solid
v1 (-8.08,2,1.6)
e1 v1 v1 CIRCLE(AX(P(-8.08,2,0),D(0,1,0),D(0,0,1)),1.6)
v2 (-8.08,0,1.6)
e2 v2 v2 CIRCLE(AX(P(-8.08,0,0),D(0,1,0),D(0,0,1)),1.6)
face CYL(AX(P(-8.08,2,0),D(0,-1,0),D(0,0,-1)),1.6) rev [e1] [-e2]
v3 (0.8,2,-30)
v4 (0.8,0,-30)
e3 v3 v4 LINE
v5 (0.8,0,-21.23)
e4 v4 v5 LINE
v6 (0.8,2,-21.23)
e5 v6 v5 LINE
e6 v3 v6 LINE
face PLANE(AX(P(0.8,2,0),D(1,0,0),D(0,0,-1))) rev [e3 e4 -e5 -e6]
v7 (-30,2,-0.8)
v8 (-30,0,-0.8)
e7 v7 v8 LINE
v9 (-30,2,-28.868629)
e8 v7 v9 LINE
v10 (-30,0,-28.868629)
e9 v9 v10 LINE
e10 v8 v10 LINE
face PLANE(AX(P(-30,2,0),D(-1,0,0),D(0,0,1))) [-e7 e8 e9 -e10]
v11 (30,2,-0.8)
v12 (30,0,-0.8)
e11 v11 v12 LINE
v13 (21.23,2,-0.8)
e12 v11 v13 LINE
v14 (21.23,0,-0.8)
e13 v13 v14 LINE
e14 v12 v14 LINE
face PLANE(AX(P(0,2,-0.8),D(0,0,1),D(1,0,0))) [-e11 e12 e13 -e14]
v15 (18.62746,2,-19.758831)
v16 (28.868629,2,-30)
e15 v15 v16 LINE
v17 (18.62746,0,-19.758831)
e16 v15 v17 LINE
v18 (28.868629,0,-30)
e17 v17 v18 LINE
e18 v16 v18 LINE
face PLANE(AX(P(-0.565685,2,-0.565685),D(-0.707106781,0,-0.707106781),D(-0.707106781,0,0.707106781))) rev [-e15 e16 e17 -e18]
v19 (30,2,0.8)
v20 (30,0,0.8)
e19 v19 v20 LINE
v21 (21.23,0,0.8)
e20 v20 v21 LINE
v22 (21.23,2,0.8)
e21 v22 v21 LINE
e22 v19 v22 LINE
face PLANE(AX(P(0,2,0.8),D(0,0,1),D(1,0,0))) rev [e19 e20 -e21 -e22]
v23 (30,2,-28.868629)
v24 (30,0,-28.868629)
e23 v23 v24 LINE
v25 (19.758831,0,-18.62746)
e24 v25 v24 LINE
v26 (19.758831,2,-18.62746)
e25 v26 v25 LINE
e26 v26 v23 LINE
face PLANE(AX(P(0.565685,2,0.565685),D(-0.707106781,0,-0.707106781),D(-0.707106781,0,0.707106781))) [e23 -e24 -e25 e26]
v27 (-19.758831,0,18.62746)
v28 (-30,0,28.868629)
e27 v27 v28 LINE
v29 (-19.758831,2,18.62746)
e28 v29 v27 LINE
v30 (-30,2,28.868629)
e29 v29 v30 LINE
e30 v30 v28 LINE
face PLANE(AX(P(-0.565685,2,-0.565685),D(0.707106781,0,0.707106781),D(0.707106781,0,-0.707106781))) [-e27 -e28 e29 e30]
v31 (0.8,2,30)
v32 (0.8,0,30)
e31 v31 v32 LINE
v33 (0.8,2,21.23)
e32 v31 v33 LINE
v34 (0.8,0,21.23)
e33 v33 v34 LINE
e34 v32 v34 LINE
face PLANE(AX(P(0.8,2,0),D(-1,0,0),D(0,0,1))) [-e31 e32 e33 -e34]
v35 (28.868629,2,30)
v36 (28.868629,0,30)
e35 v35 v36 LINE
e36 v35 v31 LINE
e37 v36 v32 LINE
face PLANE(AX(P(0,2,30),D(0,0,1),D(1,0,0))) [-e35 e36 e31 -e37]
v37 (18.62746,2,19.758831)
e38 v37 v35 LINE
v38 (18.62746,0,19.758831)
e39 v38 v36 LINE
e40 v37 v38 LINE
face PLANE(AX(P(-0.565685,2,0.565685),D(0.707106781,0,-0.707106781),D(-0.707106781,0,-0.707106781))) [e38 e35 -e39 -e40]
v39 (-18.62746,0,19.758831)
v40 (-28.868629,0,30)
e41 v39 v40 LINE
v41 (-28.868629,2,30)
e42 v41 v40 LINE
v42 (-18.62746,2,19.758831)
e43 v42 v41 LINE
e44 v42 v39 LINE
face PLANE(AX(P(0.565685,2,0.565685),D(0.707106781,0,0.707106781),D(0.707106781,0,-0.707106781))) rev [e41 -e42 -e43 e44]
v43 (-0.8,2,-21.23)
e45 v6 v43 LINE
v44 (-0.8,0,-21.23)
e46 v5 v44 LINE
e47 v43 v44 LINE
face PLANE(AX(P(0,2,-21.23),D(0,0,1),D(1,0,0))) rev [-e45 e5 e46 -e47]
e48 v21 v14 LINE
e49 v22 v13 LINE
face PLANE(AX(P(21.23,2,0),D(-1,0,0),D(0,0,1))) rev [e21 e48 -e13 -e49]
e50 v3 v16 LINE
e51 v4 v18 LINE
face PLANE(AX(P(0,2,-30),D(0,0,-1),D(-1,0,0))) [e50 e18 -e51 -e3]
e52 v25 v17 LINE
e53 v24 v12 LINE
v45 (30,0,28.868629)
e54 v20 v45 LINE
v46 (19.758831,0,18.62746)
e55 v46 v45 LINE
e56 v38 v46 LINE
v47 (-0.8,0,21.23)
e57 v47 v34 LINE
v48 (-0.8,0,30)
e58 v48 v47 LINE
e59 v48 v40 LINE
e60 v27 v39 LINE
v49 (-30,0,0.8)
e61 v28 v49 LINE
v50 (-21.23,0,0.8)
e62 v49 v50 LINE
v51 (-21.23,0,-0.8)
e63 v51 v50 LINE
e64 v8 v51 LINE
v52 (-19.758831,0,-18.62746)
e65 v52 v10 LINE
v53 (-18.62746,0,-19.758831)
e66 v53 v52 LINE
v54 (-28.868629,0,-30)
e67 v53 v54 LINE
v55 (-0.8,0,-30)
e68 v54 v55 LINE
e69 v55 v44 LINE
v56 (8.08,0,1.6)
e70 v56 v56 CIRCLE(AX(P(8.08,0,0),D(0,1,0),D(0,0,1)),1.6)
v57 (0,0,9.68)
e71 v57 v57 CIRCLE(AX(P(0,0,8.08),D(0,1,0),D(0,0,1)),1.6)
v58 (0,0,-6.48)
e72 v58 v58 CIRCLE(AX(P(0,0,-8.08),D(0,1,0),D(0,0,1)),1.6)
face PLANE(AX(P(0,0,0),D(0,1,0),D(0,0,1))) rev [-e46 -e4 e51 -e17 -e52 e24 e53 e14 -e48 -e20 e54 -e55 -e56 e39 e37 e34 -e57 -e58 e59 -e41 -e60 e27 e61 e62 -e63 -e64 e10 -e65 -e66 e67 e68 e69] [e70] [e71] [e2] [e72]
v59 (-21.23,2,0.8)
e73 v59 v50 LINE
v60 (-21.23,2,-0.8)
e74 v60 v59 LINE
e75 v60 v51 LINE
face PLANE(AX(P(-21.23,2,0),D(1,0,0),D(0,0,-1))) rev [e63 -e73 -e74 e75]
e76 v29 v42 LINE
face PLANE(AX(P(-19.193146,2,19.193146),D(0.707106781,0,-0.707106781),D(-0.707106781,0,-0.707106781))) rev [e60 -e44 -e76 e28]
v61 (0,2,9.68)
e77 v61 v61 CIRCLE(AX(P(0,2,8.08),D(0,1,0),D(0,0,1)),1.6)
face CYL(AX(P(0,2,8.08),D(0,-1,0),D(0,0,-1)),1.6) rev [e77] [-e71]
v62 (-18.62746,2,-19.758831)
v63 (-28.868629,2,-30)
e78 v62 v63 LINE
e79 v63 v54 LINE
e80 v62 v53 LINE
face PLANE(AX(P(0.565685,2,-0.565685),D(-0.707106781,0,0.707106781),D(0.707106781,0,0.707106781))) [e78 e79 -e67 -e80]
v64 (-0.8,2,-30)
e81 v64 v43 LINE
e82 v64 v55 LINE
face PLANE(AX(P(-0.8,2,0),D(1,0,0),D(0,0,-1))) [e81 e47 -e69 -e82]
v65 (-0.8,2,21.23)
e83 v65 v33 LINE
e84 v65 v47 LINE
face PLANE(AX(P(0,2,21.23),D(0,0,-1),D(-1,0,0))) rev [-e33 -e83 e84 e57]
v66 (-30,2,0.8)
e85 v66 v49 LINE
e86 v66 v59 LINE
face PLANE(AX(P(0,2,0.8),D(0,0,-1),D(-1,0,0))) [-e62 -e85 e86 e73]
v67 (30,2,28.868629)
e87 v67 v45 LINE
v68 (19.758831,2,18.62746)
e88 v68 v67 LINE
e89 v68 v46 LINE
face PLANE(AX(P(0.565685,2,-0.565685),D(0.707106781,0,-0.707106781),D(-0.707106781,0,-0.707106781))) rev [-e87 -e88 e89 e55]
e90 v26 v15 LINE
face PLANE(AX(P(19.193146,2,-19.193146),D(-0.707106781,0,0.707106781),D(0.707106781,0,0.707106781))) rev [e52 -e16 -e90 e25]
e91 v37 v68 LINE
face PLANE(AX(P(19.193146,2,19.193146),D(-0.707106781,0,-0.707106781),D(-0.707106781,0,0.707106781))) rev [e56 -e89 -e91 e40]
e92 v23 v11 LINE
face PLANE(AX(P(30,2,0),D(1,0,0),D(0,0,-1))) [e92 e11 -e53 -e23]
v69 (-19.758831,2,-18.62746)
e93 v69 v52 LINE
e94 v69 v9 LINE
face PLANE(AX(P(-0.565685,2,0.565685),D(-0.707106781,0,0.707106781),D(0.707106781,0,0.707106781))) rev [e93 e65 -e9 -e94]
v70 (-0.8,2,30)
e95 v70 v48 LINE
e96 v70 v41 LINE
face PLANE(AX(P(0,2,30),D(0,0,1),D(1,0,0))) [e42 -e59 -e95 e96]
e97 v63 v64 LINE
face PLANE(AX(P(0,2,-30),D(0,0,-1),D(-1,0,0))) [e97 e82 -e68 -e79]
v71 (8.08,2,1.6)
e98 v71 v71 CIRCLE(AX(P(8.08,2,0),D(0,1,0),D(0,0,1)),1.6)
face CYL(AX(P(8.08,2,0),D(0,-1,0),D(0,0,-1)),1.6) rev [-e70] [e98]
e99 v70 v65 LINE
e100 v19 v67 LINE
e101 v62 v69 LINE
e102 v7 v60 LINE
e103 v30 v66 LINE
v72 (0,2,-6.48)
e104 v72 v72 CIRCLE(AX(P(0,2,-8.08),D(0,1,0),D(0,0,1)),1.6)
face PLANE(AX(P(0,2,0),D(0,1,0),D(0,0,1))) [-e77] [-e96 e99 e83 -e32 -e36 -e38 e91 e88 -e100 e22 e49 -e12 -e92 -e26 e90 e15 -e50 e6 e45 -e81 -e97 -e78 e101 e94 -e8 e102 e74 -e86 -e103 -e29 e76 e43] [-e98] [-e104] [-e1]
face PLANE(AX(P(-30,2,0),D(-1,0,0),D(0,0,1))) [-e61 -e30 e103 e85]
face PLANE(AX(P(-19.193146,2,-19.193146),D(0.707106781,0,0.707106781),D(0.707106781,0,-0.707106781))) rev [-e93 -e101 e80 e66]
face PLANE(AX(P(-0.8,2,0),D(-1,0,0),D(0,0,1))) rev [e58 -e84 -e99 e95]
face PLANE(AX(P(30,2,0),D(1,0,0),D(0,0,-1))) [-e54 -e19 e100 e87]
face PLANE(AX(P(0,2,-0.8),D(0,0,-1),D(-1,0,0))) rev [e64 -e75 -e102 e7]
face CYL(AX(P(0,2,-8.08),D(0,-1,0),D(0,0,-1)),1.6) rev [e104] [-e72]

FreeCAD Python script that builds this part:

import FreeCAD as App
import Part
import Sketcher

V = App.Vector
Q = App.Units.Quantity

doc = App.newDocument("Part")
body = doc.addObject("PartDesign::Body", "Body")

sketch1 = body.newObject("Sketcher::SketchObject", "Sketch")
sketch1.AttachmentSupport = (doc.getObject("XZ_Plane"), [""])
sketch1.MapMode = "FlatFace"
sketch1.addGeometry([
    Part.LineSegment(V(-30, -28.9, 0), V(-30, -0.8, 0)),
    Part.LineSegment(V(-30, -0.8, 0), V(-21.2, -0.8, 0)),
    Part.LineSegment(V(-21.2, -0.8, 0), V(-21.2, 0.8, 0)),
    Part.LineSegment(V(-21.2, 0.8, 0), V(-30, 0.8, 0)),
    Part.LineSegment(V(-30, 0.8, 0), V(-30, 28.9, 0)),
    Part.LineSegment(V(-30, 28.9, 0), V(-19.8, 18.6, 0)),
    Part.LineSegment(V(-19.8, 18.6, 0), V(-18.6, 19.8, 0)),
    Part.LineSegment(V(-18.6, 19.8, 0), V(-28.9, 30, 0)),
    Part.LineSegment(V(-28.9, 30, 0), V(-0.8, 30, 0)),
    Part.LineSegment(V(-0.8, 30, 0), V(-0.8, 21.2, 0)),
    Part.LineSegment(V(-0.8, 21.2, 0), V(0.8, 21.2, 0)),
    Part.LineSegment(V(0.8, 21.2, 0), V(0.8, 30, 0)),
    Part.LineSegment(V(0.8, 30, 0), V(28.9, 30, 0)),
    Part.LineSegment(V(28.9, 30, 0), V(18.6, 19.8, 0)),
    Part.LineSegment(V(18.6, 19.8, 0), V(19.8, 18.6, 0)),
    Part.LineSegment(V(19.8, 18.6, 0), V(30, 28.9, 0)),
    Part.LineSegment(V(30, 28.9, 0), V(30, 0.8, 0)),
    Part.LineSegment(V(30, 0.8, 0), V(21.2, 0.8, 0)),
    Part.LineSegment(V(21.2, 0.8, 0), V(21.2, -0.8, 0)),
    Part.LineSegment(V(21.2, -0.8, 0), V(30, -0.8, 0)),
    Part.LineSegment(V(30, -0.8, 0), V(30, -28.9, 0)),
    Part.LineSegment(V(30, -28.9, 0), V(19.8, -18.6, 0)),
    Part.LineSegment(V(19.8, -18.6, 0), V(18.6, -19.8, 0)),
    Part.LineSegment(V(18.6, -19.8, 0), V(28.9, -30, 0)),
    Part.LineSegment(V(28.9, -30, 0), V(0.8, -30, 0)),
    Part.LineSegment(V(0.8, -30, 0), V(0.8, -21.2, 0)),
    Part.LineSegment(V(0.8, -21.2, 0), V(-0.8, -21.2, 0)),
    Part.LineSegment(V(-0.8, -21.2, 0), V(-0.8, -30, 0)),
    Part.LineSegment(V(-0.8, -30, 0), V(-28.9, -30, 0)),
    Part.LineSegment(V(-28.9, -30, 0), V(-18.6, -19.8, 0)),
    Part.LineSegment(V(-18.6, -19.8, 0), V(-19.8, -18.6, 0)),
    Part.LineSegment(V(-19.8, -18.6, 0), V(-30, -28.9, 0)),
    Part.Circle(V(0, 8.1, 0), V(0, 0, 1), 1.6),
    Part.Circle(V(-8.1, 0, 0), V(0, 0, 1), 1.6),
    Part.Circle(V(8.1, 0, 0), V(0, 0, 1), 1.6),
    Part.Circle(V(0, -8.1, 0), V(0, 0, 1), 1.6),
], False)
sketch1.addConstraint([
    Sketcher.Constraint("Coincident", 0, 2, 1, 1),
    Sketcher.Constraint("Coincident", 1, 2, 2, 1),
    Sketcher.Constraint("Coincident", 2, 2, 3, 1),
    Sketcher.Constraint("Coincident", 3, 2, 4, 1),
    Sketcher.Constraint("Coincident", 4, 2, 5, 1),
    Sketcher.Constraint("Coincident", 5, 2, 6, 1),
    Sketcher.Constraint("Coincident", 6, 2, 7, 1),
    Sketcher.Constraint("Coincident", 7, 2, 8, 1),
    Sketcher.Constraint("Coincident", 8, 2, 9, 1),
    Sketcher.Constraint("Coincident", 9, 2, 10, 1),
    Sketcher.Constraint("Coincident", 10, 2, 11, 1),
    Sketcher.Constraint("Coincident", 11, 2, 12, 1),
    Sketcher.Constraint("Coincident", 12, 2, 13, 1),
    Sketcher.Constraint("Coincident", 13, 2, 14, 1),
    Sketcher.Constraint("Coincident", 14, 2, 15, 1),
    Sketcher.Constraint("Coincident", 15, 2, 16, 1),
    Sketcher.Constraint("Coincident", 16, 2, 17, 1),
    Sketcher.Constraint("Coincident", 17, 2, 18, 1),
    Sketcher.Constraint("Coincident", 18, 2, 19, 1),
    Sketcher.Constraint("Coincident", 19, 2, 20, 1),
    Sketcher.Constraint("Coincident", 20, 2, 21, 1),
    Sketcher.Constraint("Coincident", 21, 2, 22, 1),
    Sketcher.Constraint("Coincident", 22, 2, 23, 1),
    Sketcher.Constraint("Coincident", 23, 2, 24, 1),
    Sketcher.Constraint("Coincident", 24, 2, 25, 1),
    Sketcher.Constraint("Coincident", 25, 2, 26, 1),
    Sketcher.Constraint("Coincident", 26, 2, 27, 1),
    Sketcher.Constraint("Coincident", 27, 2, 28, 1),
    Sketcher.Constraint("Coincident", 28, 2, 29, 1),
    Sketcher.Constraint("Coincident", 29, 2, 30, 1),
    Sketcher.Constraint("Coincident", 30, 2, 31, 1),
    Sketcher.Constraint("Coincident", 31, 2, 0, 1),
    Sketcher.Constraint("Vertical", 0),
    Sketcher.Constraint("Horizontal", 1),
    Sketcher.Constraint("Vertical", 2),
    Sketcher.Constraint("Horizontal", 3),
    Sketcher.Constraint("Vertical", 4),
    Sketcher.Constraint("Horizontal", 8),
    Sketcher.Constraint("Vertical", 9),
    Sketcher.Constraint("Horizontal", 10),
    Sketcher.Constraint("Vertical", 11),
    Sketcher.Constraint("Horizontal", 12),
    Sketcher.Constraint("Vertical", 16),
    Sketcher.Constraint("Horizontal", 17),
    Sketcher.Constraint("Vertical", 18),
    Sketcher.Constraint("Horizontal", 19),
    Sketcher.Constraint("Vertical", 20),
    Sketcher.Constraint("Horizontal", 24),
    Sketcher.Constraint("Vertical", 25),
    Sketcher.Constraint("Horizontal", 26),
    Sketcher.Constraint("Vertical", 27),
    Sketcher.Constraint("Horizontal", 28),
    Sketcher.Constraint("Equal", 32, 33),
    Sketcher.Constraint("Equal", 33, 34),
    Sketcher.Constraint("Equal", 34, 35),
    Sketcher.Constraint("Symmetric", 33, 3, 34, 3, -1, 1),
    Sketcher.Constraint("Symmetric", 32, 3, 35, 3, -1, 1),
    Sketcher.Constraint("Symmetric", 0, 2, 16, 2, -1, 1),
    Sketcher.Constraint("Symmetric", 2, 2, 18, 2, -1, 1),
    Sketcher.Constraint("Symmetric", 4, 2, 20, 2, -1, 1),
    Sketcher.Constraint("Symmetric", 5, 2, 21, 2, -1, 1),
    Sketcher.Constraint("Symmetric", 6, 2, 22, 2, -1, 1),
    Sketcher.Constraint("Symmetric", 7, 2, 23, 2, -1, 1),
    Sketcher.Constraint("Symmetric", 9, 2, 25, 2, -1, 1),
    Sketcher.Constraint("Symmetric", 11, 2, 27, 2, -1, 1),
    Sketcher.Constraint("Symmetric", 13, 2, 29, 2, -1, 1),
    Sketcher.Constraint("Symmetric", 14, 2, 30, 2, -1, 1),
    Sketcher.Constraint("Symmetric", 8, 2, 11, 2, -2),
    Sketcher.Constraint("Symmetric", 6, 2, 13, 2, -2),
    Sketcher.Constraint("Symmetric", 5, 2, 14, 2, -2),
    Sketcher.Constraint("Symmetric", 4, 2, 15, 2, -2),
    Sketcher.Constraint("PointOnObject", 32, 3, -2),
    Sketcher.Constraint("PointOnObject", 33, 3, -1),
    Sketcher.Constraint("Perpendicular", 5, 6),
    Sketcher.Constraint("Perpendicular", 6, 7),
    Sketcher.Constraint("Perpendicular", 7, 13),
    Sketcher.Constraint("Perpendicular", 13, 14),
    Sketcher.Constraint("Perpendicular", 23, 29),
    Sketcher.Constraint("Perpendicular", 30, 31),
    Sketcher.Constraint("Horizontal", 3, 2, 16, 2),
    Sketcher.Constraint("Equal", 28, 0),
    Sketcher.Constraint("Equal", 26, 2),
    Sketcher.Constraint("Equal", 19, 9),
    Sketcher.Constraint("Equal", 5, 7),
    Sketcher.Constraint("Diameter", 32, Q("3.2 mm")),
    Sketcher.Constraint("DistanceX", 10, 1, 10, 2, Q("1.6 mm")),
    Sketcher.Constraint("DistanceX", 0, 2, -1, 1, Q("30 mm")),
    Sketcher.Constraint("Distance", 6, Q("1.6 mm")),
    Sketcher.Constraint("DistanceX", 1, 1, 1, 2, Q("8.77 mm")),
    Sketcher.Constraint("DistanceY", -1, 1, 32, 3, Q("8.08 mm")),
    Sketcher.Constraint("DistanceX", 33, 3, -1, 1, Q("8.08 mm")),
    Sketcher.Constraint("Distance", 5, Q("14.4832 mm")),
])
pad1 = body.newObject("PartDesign::Pad", "Pad")
pad1.Profile = sketch1
pad1.Length = 2
pad1.Reversed = True

doc.recompute()
